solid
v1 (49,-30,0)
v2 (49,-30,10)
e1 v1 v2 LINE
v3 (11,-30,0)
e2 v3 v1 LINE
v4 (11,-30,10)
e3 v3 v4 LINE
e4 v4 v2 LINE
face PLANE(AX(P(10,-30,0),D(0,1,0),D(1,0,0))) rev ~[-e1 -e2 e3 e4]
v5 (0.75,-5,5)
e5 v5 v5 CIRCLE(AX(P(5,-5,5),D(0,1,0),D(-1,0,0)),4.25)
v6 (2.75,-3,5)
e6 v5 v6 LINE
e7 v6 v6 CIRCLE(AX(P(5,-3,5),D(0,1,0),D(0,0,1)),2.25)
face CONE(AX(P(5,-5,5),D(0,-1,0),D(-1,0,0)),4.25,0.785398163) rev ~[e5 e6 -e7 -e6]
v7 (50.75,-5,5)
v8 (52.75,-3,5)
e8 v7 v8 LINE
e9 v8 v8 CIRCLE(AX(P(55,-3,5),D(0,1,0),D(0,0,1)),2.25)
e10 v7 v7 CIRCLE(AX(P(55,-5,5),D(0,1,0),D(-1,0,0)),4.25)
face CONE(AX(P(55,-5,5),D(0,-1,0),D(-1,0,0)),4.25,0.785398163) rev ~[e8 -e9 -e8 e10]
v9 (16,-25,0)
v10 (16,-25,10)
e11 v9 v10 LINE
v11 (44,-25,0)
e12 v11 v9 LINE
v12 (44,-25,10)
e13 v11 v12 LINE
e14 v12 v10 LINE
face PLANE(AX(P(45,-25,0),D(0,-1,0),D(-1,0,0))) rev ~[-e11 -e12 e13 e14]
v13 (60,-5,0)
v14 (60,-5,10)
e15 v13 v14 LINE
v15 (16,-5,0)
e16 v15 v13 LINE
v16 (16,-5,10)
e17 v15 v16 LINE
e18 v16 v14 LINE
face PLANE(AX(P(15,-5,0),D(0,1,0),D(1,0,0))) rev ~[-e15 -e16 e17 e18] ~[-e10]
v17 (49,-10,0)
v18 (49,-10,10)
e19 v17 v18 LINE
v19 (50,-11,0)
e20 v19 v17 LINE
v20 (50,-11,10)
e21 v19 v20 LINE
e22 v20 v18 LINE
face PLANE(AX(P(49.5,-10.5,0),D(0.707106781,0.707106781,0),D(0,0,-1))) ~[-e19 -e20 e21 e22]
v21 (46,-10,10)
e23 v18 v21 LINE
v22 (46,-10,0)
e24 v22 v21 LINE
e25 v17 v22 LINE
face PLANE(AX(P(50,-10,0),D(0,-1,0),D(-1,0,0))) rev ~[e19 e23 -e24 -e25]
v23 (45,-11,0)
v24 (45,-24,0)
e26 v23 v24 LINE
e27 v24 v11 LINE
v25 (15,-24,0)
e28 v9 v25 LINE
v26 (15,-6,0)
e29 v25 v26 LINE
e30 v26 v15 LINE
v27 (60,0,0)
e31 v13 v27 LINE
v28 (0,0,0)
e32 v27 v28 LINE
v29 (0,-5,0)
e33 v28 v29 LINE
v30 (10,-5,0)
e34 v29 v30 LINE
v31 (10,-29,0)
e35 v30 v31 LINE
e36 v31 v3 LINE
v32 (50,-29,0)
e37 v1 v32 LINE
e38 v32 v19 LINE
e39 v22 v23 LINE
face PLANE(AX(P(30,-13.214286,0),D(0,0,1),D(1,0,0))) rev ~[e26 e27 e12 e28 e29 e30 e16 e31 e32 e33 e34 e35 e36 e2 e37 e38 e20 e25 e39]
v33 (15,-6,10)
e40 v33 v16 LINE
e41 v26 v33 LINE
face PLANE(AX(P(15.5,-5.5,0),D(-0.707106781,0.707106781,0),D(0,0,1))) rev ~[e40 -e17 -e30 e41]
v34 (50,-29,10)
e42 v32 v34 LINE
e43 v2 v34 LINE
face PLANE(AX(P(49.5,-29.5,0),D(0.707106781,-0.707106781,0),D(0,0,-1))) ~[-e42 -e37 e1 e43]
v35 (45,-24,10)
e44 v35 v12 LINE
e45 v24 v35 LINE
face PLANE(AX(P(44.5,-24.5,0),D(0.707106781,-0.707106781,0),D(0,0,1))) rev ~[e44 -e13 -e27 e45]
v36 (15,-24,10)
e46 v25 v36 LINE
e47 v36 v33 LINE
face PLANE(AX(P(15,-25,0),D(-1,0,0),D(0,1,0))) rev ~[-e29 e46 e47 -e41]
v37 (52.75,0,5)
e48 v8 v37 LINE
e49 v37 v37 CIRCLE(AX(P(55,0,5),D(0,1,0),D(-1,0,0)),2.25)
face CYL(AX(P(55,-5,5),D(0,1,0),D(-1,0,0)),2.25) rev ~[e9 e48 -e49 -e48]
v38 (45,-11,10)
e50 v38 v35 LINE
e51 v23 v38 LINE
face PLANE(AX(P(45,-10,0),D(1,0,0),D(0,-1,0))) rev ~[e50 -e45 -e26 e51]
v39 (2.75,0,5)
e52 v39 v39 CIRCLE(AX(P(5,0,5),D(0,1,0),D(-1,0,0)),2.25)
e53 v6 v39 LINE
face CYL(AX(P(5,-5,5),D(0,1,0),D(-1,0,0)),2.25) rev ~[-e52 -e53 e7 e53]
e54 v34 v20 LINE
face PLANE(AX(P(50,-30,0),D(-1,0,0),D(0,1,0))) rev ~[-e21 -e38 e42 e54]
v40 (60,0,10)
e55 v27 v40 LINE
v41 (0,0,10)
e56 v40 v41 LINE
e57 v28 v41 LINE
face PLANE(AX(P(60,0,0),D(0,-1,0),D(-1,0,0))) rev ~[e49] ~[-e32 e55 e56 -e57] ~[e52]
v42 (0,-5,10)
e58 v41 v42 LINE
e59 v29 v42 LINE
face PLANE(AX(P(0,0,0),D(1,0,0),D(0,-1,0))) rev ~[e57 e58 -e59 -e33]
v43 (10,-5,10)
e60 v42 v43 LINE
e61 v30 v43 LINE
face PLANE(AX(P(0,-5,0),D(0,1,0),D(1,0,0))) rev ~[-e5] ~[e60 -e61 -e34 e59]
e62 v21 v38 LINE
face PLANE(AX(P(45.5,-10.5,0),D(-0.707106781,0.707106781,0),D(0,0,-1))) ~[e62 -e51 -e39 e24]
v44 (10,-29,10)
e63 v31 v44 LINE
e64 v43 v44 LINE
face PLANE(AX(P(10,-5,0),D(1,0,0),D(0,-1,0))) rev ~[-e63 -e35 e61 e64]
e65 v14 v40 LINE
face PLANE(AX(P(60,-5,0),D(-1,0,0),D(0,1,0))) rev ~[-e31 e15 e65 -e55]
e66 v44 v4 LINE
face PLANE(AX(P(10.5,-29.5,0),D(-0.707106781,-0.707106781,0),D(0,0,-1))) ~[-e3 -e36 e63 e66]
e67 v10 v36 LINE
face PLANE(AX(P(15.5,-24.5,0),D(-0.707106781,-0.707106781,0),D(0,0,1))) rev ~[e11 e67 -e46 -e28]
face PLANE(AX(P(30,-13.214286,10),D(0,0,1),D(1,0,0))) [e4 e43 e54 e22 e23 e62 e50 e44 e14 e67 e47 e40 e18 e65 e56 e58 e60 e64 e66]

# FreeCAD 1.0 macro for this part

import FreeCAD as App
import Part
import Sketcher

V = App.Vector
Q = App.Units.Quantity


def edges_at(feature, points):
    """Names of the edges that pass closest to the given points."""
    edges = feature.Shape.Edges
    near = lambda p: min(range(len(edges)), key=lambda i: edges[i].distToShape(Part.Vertex(*p))[0])
    return sorted({f"Edge{near(p) + 1}" for p in points})


def add_polygon(sketch, points):
    """Adds a closed chain of lines whose ends are joined by coincident constraints."""
    first, n = sketch.GeometryCount, len(points)
    for a, b in zip(points, points[1:] + points[:1]):
        sketch.addGeometry(Part.LineSegment(App.Vector(*a, 0), App.Vector(*b, 0)), False)
    for i in range(n):
        sketch.addConstraint(Sketcher.Constraint("Coincident", first + i, 2, first + (i + 1) % n, 1))

doc = App.newDocument("Part")
body = doc.addObject("PartDesign::Body", "Body")

sketch1 = body.newObject("Sketcher::SketchObject", "Sketch")
sketch1.AttachmentSupport = (doc.getObject("XY_Plane"), [""])
sketch1.MapMode = "FlatFace"
add_polygon(sketch1, [(60, 0), (0, 0), (0, -5), (10, -5), (10, -30), (50, -30), (50, -10), (45, -10), (45, -25), (15, -25), (15, -5), (60, -5)])
sketch1.addConstraint([
    Sketcher.Constraint("Horizontal", 0),
    Sketcher.Constraint("Vertical", 1),
    Sketcher.Constraint("Horizontal", 2),
    Sketcher.Constraint("Vertical", 3),
    Sketcher.Constraint("Horizontal", 4),
    Sketcher.Constraint("Vertical", 5),
    Sketcher.Constraint("Horizontal", 6),
    Sketcher.Constraint("Vertical", 7),
    Sketcher.Constraint("Horizontal", 8),
    Sketcher.Constraint("Vertical", 9),
    Sketcher.Constraint("Horizontal", 10),
    Sketcher.Constraint("Vertical", 11),
    Sketcher.Constraint("Coincident", 0, 2, -1, 1),
    Sketcher.Constraint("Horizontal", 2, 2, 9, 2),
    Sketcher.Constraint("Equal", 6, 1),
    Sketcher.Constraint("Equal", 5, 9),
    Sketcher.Constraint("DistanceX", 0, 2, 0, 1, Q("60 mm")),
    Sketcher.Constraint("DistanceX", 2, 1, 2, 2, Q("10 mm")),
    Sketcher.Constraint("DistanceX", 4, 1, 4, 2, Q("40 mm")),
    Sketcher.Constraint("DistanceX", 6, 2, 6, 1, Q("5 mm")),
    Sketcher.Constraint("DistanceX", 8, 2, 8, 1, Q("30 mm")),
    Sketcher.Constraint("DistanceY", 3, 2, 3, 1, Q("25 mm")),
    Sketcher.Constraint("DistanceY", 5, 1, 5, 2, Q("20 mm")),
])
pad1 = body.newObject("PartDesign::Pad", "Pad")
pad1.Profile = sketch1
pad1.Length = 10

sketch2 = body.newObject("Sketcher::SketchObject", "Sketch001")
sketch2.AttachmentSupport = (doc.getObject("XZ_Plane"), [""])
sketch2.MapMode = "FlatFace"
sketch2.AttachmentOffset = App.Placement(V(0, 0, 5), App.Rotation())
sketch2.addGeometry([
    Part.Circle(V(5, 5, 0), V(0, 0, 1), 2.2),
    Part.Circle(V(55, 5, 0), V(0, 0, 1), 2.2),
], False)
sketch2.addConstraint([
    Sketcher.Constraint("Equal", 0, 1),
    Sketcher.Constraint("Horizontal", 0, 3, 1, 3),
    Sketcher.Constraint("Diameter", 0, Q("4.5 mm")),
    Sketcher.Constraint("DistanceX", -1, 1, 0, 3, Q("5 mm")),
    Sketcher.Constraint("DistanceY", -1, 1, 0, 3, Q("5 mm")),
    Sketcher.Constraint("DistanceX", -1, 1, 1, 3, Q("55 mm")),
])
doc.recompute()
hole = body.newObject("PartDesign::Hole", "Hole")
hole.Profile = sketch2
hole.ThreadType = "None"
hole.Diameter = 4.5
hole.DepthType = "ThroughAll"
hole.HoleCutType = "Countersink"
hole.HoleCutDiameter = 8.5
hole.HoleCutCountersinkAngle = 90
doc.recompute()

chamfer = body.newObject("PartDesign::Chamfer", "Chamfer")
chamfer.Base = (hole, edges_at(hole, [
    (50, -10, 5),
    (45, -10, 5),
    (15, -5, 5),
    (15, -25, 5),
    (45, -25, 5),
    (50, -30, 5),
    (10, -30, 5),
]))
chamfer.Size = 1

doc.recompute()
